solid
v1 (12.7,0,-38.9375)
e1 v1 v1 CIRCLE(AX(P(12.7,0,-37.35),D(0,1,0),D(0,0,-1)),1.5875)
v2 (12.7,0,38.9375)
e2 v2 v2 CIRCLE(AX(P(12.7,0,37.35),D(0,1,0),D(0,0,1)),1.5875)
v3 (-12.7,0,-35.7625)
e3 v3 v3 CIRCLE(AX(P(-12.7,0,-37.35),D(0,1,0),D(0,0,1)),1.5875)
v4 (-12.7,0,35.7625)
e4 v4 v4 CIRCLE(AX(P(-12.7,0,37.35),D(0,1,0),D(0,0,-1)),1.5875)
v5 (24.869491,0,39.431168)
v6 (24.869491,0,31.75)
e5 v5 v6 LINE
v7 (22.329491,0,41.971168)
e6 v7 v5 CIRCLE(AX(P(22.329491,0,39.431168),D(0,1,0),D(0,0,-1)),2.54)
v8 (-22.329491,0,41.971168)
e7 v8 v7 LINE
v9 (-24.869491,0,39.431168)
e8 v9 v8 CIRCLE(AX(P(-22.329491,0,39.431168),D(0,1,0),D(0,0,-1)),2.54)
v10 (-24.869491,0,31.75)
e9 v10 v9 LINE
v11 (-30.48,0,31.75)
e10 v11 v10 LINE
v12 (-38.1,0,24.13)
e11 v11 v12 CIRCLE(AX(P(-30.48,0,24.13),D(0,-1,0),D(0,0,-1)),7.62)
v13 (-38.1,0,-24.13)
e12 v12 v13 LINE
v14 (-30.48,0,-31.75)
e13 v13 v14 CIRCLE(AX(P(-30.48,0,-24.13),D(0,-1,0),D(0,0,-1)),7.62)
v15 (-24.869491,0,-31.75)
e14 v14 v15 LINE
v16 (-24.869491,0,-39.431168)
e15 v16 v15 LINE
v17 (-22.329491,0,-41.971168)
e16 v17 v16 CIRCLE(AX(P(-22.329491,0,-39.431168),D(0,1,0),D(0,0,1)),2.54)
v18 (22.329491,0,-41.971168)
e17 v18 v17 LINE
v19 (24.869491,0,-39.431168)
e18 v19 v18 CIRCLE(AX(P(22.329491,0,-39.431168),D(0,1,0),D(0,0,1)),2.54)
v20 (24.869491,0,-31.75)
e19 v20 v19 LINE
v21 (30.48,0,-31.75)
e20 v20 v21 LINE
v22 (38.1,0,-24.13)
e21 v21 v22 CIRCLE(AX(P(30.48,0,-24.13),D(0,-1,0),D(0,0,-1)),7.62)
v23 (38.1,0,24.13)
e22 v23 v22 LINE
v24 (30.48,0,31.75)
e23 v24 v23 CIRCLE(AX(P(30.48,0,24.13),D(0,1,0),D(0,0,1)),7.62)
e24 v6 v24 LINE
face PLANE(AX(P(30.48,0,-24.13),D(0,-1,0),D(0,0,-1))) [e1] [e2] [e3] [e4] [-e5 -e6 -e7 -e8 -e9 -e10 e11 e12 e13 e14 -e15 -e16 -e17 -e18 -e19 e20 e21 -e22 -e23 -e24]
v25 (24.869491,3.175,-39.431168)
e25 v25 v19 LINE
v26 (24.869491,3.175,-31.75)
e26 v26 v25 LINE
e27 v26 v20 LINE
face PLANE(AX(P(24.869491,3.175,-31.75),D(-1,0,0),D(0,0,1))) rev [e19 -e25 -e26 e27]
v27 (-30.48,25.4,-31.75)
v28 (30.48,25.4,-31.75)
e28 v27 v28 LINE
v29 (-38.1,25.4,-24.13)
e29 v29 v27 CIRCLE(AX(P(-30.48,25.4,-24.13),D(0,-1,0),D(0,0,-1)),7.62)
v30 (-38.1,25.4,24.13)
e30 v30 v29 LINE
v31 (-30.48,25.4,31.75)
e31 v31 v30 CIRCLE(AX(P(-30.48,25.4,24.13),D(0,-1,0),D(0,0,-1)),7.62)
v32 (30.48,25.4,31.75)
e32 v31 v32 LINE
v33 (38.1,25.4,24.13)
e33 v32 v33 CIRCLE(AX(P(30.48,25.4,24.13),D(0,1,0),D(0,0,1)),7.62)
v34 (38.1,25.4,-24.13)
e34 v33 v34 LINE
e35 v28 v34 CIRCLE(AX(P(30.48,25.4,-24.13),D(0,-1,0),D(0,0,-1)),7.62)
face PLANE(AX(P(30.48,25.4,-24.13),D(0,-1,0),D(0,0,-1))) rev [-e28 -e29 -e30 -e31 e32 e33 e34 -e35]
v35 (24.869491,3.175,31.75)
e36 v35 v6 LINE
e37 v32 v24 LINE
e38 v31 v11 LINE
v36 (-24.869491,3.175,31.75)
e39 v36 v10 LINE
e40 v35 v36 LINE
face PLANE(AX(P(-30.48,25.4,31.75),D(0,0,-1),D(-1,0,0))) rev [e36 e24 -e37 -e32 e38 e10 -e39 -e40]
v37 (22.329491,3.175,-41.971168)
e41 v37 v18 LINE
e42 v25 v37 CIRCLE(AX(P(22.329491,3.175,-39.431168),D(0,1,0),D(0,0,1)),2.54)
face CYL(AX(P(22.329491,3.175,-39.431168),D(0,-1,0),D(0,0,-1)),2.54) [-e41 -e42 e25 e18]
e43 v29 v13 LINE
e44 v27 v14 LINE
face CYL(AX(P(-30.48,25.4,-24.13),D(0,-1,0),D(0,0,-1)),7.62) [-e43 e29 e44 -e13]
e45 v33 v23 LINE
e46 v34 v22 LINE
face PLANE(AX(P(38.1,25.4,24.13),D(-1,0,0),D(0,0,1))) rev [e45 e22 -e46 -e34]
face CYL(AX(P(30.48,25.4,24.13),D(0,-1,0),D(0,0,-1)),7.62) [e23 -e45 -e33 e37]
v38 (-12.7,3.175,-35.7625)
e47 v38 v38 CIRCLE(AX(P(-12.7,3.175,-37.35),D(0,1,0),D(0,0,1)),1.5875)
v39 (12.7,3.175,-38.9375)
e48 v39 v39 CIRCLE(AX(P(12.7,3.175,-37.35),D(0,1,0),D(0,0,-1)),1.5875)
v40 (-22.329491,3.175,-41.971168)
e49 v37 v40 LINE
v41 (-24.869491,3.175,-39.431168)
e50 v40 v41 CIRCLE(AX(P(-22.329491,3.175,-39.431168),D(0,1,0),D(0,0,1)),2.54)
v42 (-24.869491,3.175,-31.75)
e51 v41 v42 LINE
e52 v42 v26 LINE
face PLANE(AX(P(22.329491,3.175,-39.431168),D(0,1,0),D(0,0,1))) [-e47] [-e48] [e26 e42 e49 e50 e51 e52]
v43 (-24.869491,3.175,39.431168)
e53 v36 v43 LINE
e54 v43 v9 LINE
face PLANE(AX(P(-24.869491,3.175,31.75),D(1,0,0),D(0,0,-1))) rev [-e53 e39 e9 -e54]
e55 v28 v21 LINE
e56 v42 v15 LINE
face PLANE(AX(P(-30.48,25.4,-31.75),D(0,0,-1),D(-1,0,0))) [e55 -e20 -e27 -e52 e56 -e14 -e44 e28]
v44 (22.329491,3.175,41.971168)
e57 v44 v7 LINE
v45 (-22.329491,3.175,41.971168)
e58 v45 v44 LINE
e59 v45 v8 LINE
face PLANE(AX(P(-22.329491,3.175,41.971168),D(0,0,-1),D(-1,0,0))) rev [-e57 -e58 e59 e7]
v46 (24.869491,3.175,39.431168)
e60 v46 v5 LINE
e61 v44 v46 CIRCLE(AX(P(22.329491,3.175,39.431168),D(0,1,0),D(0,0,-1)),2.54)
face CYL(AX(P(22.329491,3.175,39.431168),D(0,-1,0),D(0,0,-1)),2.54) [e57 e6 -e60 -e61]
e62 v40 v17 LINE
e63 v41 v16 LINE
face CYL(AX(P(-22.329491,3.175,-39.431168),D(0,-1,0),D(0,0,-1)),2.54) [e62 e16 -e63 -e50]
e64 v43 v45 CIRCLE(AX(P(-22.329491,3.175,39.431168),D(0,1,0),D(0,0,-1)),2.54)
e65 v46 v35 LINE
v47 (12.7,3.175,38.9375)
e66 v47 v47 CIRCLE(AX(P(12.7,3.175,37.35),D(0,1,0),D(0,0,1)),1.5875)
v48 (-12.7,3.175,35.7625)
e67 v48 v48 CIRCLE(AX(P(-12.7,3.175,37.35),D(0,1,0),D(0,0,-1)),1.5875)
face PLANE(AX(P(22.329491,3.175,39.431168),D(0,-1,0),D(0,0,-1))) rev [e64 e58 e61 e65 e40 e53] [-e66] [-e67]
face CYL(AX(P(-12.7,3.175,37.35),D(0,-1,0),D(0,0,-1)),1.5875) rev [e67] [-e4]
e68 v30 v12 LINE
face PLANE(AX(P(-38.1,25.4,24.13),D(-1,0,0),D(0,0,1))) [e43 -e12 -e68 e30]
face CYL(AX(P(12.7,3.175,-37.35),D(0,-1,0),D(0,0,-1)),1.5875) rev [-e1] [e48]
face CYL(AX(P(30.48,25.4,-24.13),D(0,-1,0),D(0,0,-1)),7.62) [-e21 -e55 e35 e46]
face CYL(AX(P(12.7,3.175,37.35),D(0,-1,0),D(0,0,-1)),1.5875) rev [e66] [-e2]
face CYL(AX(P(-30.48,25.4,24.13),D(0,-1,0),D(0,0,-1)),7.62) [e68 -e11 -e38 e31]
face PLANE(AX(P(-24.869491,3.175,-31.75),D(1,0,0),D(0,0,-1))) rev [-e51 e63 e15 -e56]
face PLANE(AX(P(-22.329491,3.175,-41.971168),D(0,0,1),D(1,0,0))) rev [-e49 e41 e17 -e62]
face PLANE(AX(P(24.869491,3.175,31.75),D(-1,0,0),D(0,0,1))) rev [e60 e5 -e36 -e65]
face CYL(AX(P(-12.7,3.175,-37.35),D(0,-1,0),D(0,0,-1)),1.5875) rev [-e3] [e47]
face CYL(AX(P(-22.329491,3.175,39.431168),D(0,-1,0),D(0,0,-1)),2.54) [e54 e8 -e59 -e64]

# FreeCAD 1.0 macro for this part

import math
import FreeCAD as App
import Part
import Sketcher

V = App.Vector
Q = App.Units.Quantity

doc = App.newDocument("Part")
body = doc.addObject("PartDesign::Body", "Body")

# Sketch on XZ plane
sketch1 = body.newObject("Sketcher::SketchObject", "Sketch")
sketch1.AttachmentSupport = (doc.getObject("XZ_Plane"), [""])
sketch1.MapMode = "FlatFace"
sketch1.addGeometry([
    Part.LineSegment(V(-30, 32, 0), V(30, 32, 0)),  # 0
    Part.ArcOfCircle(Part.Circle(V(30, 24, 0), V(0, 0, 1), 8), math.radians(0), math.radians(90)),  # 1
    Part.LineSegment(V(38, 24, 0), V(38, -24, 0)),  # 2
    Part.ArcOfCircle(Part.Circle(V(30, -24, 0), V(0, 0, 1), 8), math.radians(-90), math.radians(0)),  # 3
    Part.LineSegment(V(30, -32, 0), V(-30, -32, 0)),  # 4
    Part.ArcOfCircle(Part.Circle(V(-30, -24, 0), V(0, 0, 1), 8), math.radians(180), math.radians(270)),  # 5
    Part.LineSegment(V(-38, -24, 0), V(-38, 24, 0)),  # 6
    Part.ArcOfCircle(Part.Circle(V(-30, 24, 0), V(0, 0, 1), 8), math.radians(90), math.radians(180)),  # 7
], False)
sketch1.addConstraint([
    Sketcher.Constraint("Tangent", 0, 2, 1, 2),
    Sketcher.Constraint("Tangent", 1, 1, 2, 1),
    Sketcher.Constraint("Tangent", 2, 2, 3, 2),
    Sketcher.Constraint("Tangent", 3, 1, 4, 1),
    Sketcher.Constraint("Tangent", 4, 2, 5, 2),
    Sketcher.Constraint("Tangent", 5, 1, 6, 1),
    Sketcher.Constraint("Tangent", 6, 2, 7, 2),
    Sketcher.Constraint("Tangent", 7, 1, 0, 1),
    Sketcher.Constraint("Horizontal", 0),
    Sketcher.Constraint("Vertical", 2),
    Sketcher.Constraint("Horizontal", 4),
    Sketcher.Constraint("Vertical", 6),
    Sketcher.Constraint("Equal", 1, 3),
    Sketcher.Constraint("Equal", 3, 5),
    Sketcher.Constraint("Equal", 5, 7),
    Sketcher.Constraint("Symmetric", 1, 3, 5, 3, -1, 1),
    Sketcher.Constraint("Radius", 1, Q("0.3 in")),
    Sketcher.Constraint("DistanceX", 0, 1, 0, 2, Q("2.4 in")),
    Sketcher.Constraint("DistanceY", 2, 2, 2, 1, Q("1.9 in")),
])
pad1 = body.newObject("PartDesign::Pad", "Pad")
pad1.Profile = sketch1
pad1.Length = Q("1 in")
pad1.Reversed = True

# Sketch on XZ plane
sketch2 = body.newObject("Sketcher::SketchObject", "Sketch001")
sketch2.AttachmentSupport = (doc.getObject("XZ_Plane"), [""])
sketch2.MapMode = "FlatFace"
sketch2.addGeometry([
    Part.LineSegment(V(24.9, 31.8, 0), V(-24.9, 31.8, 0)),  # 0
    Part.LineSegment(V(-24.9, 31.8, 0), V(-24.9, 39.4, 0)),  # 1
    Part.ArcOfCircle(Part.Circle(V(-22.3, 39.4, 0), V(0, 0, 1), 2.5), math.radians(90), math.radians(180)),  # 2
    Part.LineSegment(V(-22.3, 42, 0), V(22.3, 42, 0)),  # 3
    Part.ArcOfCircle(Part.Circle(V(22.3, 39.4, 0), V(0, 0, 1), 2.5), math.radians(0), math.radians(90)),  # 4
    Part.LineSegment(V(24.9, 39.4, 0), V(24.9, 31.8, 0)),  # 5
    Part.Circle(V(12.7, 37.4, 0), V(0, 0, 1), 1.6),  # 6
    Part.Circle(V(-12.7, 37.4, 0), V(0, 0, 1), 1.6),  # 7
    Part.LineSegment(V(-24.9, -39.4, 0), V(-24.9, -31.8, 0)),  # 8
    Part.LineSegment(V(-24.9, -31.8, 0), V(24.9, -31.8, 0)),  # 9
    Part.LineSegment(V(24.9, -31.8, 0), V(24.9, -39.4, 0)),  # 10
    Part.ArcOfCircle(Part.Circle(V(22.3, -39.4, 0), V(0, 0, 1), 2.5), math.radians(-90), math.radians(0)),  # 11
    Part.LineSegment(V(22.3, -42, 0), V(-22.3, -42, 0)),  # 12
    Part.ArcOfCircle(Part.Circle(V(-22.3, -39.4, 0), V(0, 0, 1), 2.5), math.radians(-180), math.radians(-90)),  # 13
    Part.Circle(V(12.7, -37.4, 0), V(0, 0, 1), 1.6),  # 14
    Part.Circle(V(-12.7, -37.4, 0), V(0, 0, 1), 1.6),  # 15
], False)
sketch2.addConstraint([
    Sketcher.Constraint("Coincident", 0, 2, 1, 1),
    Sketcher.Constraint("Tangent", 1, 2, 2, 2),
    Sketcher.Constraint("Tangent", 2, 1, 3, 1),
    Sketcher.Constraint("Tangent", 3, 2, 4, 2),
    Sketcher.Constraint("Tangent", 4, 1, 5, 1),
    Sketcher.Constraint("Coincident", 5, 2, 0, 1),
    Sketcher.Constraint("Coincident", 8, 2, 9, 1),
    Sketcher.Constraint("Coincident", 9, 2, 10, 1),
    Sketcher.Constraint("Tangent", 10, 2, 11, 2),
    Sketcher.Constraint("Tangent", 11, 1, 12, 1),
    Sketcher.Constraint("Tangent", 12, 2, 13, 2),
    Sketcher.Constraint("Tangent", 13, 1, 8, 1),
    Sketcher.Constraint("Horizontal", 0),
    Sketcher.Constraint("Vertical", 1),
    Sketcher.Constraint("Horizontal", 3),
    Sketcher.Constraint("Vertical", 5),
    Sketcher.Constraint("Vertical", 8),
    Sketcher.Constraint("Horizontal", 9),
    Sketcher.Constraint("Vertical", 10),
    Sketcher.Constraint("Horizontal", 12),
    Sketcher.Constraint("Equal", 2, 4),
    Sketcher.Constraint("Equal", 6, 7),
    Sketcher.Constraint("Equal", 4, 11),
    Sketcher.Constraint("Equal", 11, 13),
    Sketcher.Constraint("Equal", 7, 14),
    Sketcher.Constraint("Equal", 14, 15),
    Sketcher.Constraint("Symmetric", 2, 3, 11, 3, -1, 1),
    Sketcher.Constraint("Symmetric", 7, 3, 14, 3, -1, 1),
    Sketcher.Constraint("Symmetric", 6, 3, 15, 3, -1, 1),
    Sketcher.Constraint("Symmetric", 5, 2, 8, 2, -1, 1),
    Sketcher.Constraint("Symmetric", 6, 3, 7, 3, -2),
    Sketcher.Constraint("Vertical", 4, 3, 11, 3),
    Sketcher.Constraint("Radius", 2, Q("0.1 in")),
    Sketcher.Constraint("Diameter", 6, Q("0.125 in")),
    Sketcher.Constraint("DistanceX", 7, 3, 6, 3, Q("1 in")),
    Sketcher.Constraint("DistanceY", 8, 2, 0, 2, Q("2.5 in")),
    Sketcher.Constraint("DistanceX", 0, 2, 0, 1, Q("49.738982 mm")),
    Sketcher.Constraint("DistanceY", -1, 1, 6, 3, Q("37.35 mm")),
    Sketcher.Constraint("DistanceY", 1, 1, 1, 2, Q("7.681168 mm")),
])
pad2 = body.newObject("PartDesign::Pad", "Pad001")
pad2.Profile = sketch2
pad2.Length = Q("0.125 in")
pad2.Reversed = True

doc.recompute()
